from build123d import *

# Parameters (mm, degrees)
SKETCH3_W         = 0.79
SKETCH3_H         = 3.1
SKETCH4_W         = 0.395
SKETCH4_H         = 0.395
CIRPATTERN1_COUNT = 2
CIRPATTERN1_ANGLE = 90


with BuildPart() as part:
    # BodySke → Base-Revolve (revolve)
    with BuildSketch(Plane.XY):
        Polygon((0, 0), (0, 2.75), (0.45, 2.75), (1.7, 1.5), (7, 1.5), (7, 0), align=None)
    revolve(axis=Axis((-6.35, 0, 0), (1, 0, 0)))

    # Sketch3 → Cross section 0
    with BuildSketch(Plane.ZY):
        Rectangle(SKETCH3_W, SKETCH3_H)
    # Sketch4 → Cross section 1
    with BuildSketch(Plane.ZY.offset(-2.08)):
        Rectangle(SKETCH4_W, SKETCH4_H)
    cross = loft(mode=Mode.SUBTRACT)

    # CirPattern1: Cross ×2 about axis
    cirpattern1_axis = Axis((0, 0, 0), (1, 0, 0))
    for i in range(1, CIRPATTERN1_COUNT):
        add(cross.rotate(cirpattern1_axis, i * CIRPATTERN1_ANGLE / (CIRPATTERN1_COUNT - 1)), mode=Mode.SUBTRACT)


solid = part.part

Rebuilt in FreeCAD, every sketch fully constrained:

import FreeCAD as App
import Part
import Sketcher

V = App.Vector
Q = App.Units.Quantity


def add_polygon(sketch, points):
    """Adds a closed chain of lines whose ends are joined by coincident constraints."""
    first, n = sketch.GeometryCount, len(points)
    for a, b in zip(points, points[1:] + points[:1]):
        sketch.addGeometry(Part.LineSegment(App.Vector(*a, 0), App.Vector(*b, 0)), False)
    for i in range(n):
        sketch.addConstraint(Sketcher.Constraint("Coincident", first + i, 2, first + (i + 1) % n, 1))

doc = App.newDocument("Part")
body = doc.addObject("PartDesign::Body", "Body")

# Sketch on XY plane
sketch1 = body.newObject("Sketcher::SketchObject", "Sketch")
sketch1.AttachmentSupport = (doc.getObject("XY_Plane"), [""])
sketch1.MapMode = "FlatFace"
add_polygon(sketch1, [(0, 2.75), (0, 0), (7, 0), (7, 1.5), (1.7, 1.5), (0.45, 2.75)])  # lines 0-5
sketch1.addConstraint([
    Sketcher.Constraint("Vertical", 0),
    Sketcher.Constraint("Horizontal", 1),
    Sketcher.Constraint("Vertical", 2),
    Sketcher.Constraint("Horizontal", 3),
    Sketcher.Constraint("Horizontal", 5),
    Sketcher.Constraint("Coincident", 0, 2, -1, 1),
    Sketcher.Constraint("DistanceX", 1, 1, 1, 2, 7.0),
    Sketcher.Constraint("Angle", 4, Q("135 deg")),
    Sketcher.Constraint("DistanceX", 3, 2, 3, 1, 5.3),
    Sketcher.Constraint("DistanceY", 2, 1, 2, 2, 1.5),
    Sketcher.Constraint("DistanceX", 5, 2, 5, 1, 0.45),
])
revolution = body.newObject("PartDesign::Revolution", "Revolution")
revolution.Profile = sketch1
revolution.ReferenceAxis = (sketch1, ["H_Axis"])
revolution.Angle = 360

# Sketch on YZ plane
sketch2 = body.newObject("Sketcher::SketchObject", "Sketch001")
sketch2.AttachmentSupport = (doc.getObject("YZ_Plane"), [""])
sketch2.MapMode = "FlatFace"
add_polygon(sketch2, [(1.6, -0.4), (-1.6, -0.4), (-1.6, 0.4), (1.6, 0.4)])  # lines 0-3
sketch2.addConstraint([
    Sketcher.Constraint("Horizontal", 0),
    Sketcher.Constraint("Vertical", 1),
    Sketcher.Constraint("Horizontal", 2),
    Sketcher.Constraint("Vertical", 3),
    Sketcher.Constraint("Symmetric", 0, 2, 2, 2, -1, 1),
    Sketcher.Constraint("DistanceX", 0, 2, 0, 1, 3.1),
    Sketcher.Constraint("DistanceY", 1, 1, 1, 2, 0.79),
])

# Sketch on YZ plane
sketch3 = body.newObject("Sketcher::SketchObject", "Sketch002")
sketch3.AttachmentSupport = (doc.getObject("YZ_Plane"), [""])
sketch3.MapMode = "FlatFace"
sketch3.AttachmentOffset = App.Placement(V(0, 0, 2.08), App.Rotation())
add_polygon(sketch3, [(0.2, -0.2), (-0.2, -0.2), (-0.2, 0.2), (0.2, 0.2)])  # lines 0-3
sketch3.addConstraint([
    Sketcher.Constraint("Horizontal", 0),
    Sketcher.Constraint("Vertical", 1),
    Sketcher.Constraint("Horizontal", 2),
    Sketcher.Constraint("Vertical", 3),
    Sketcher.Constraint("Symmetric", 0, 2, 2, 2, -1, 1),
    Sketcher.Constraint("Equal", 2, 1),
    Sketcher.Constraint("DistanceX", 0, 2, 0, 1, 0.395),
])

subtractiveloft = body.newObject("PartDesign::SubtractiveLoft", "SubtractiveLoft")
subtractiveloft.Profile = sketch2
subtractiveloft.Sections = [sketch3]
doc.recompute()

polarpattern = body.newObject("PartDesign::PolarPattern", "PolarPattern")
polarpattern.Originals = [subtractiveloft]
polarpattern.Axis = (doc.getObject("X_Axis"), [""])
polarpattern.Angle = 90
polarpattern.Occurrences = 2
body.Tip = polarpattern

doc.recompute()
